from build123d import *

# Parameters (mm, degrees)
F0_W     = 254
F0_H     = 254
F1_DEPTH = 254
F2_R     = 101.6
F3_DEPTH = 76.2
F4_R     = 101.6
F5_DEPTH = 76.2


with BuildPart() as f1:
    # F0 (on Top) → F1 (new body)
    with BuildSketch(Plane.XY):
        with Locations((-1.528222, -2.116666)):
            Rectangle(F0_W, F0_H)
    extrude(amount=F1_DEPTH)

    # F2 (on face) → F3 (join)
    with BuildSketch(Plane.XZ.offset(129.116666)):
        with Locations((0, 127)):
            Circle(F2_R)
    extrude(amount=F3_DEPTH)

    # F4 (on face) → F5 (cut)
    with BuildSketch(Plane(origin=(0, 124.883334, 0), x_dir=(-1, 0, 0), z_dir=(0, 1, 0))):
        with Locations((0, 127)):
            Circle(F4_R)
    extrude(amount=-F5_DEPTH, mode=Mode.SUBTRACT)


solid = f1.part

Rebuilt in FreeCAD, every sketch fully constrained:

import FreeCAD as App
import Part
import Sketcher
from FreeCAD import Vector
Q = App.Units.Quantity


def add_polygon(sketch, points):
    """Adds a closed chain of lines whose ends are joined by coincident constraints."""
    first, n = sketch.GeometryCount, len(points)
    for a, b in zip(points, points[1:] + points[:1]):
        sketch.addGeometry(Part.LineSegment(App.Vector(*a, 0), App.Vector(*b, 0)), False)
    for i in range(n):
        sketch.addConstraint(Sketcher.Constraint("Coincident", first + i, 2, first + (i + 1) % n, 1))

doc = App.newDocument("Part")
params = doc.addObject("Spreadsheet::Sheet", "Params")
for row, (alias, value) in enumerate([
    ("sketch1_width", "10 in"),
    ("pad1_length", "10 in"),
    ("sketch2_diameter", "8 in"),
    ("pad2_length", "3 in"),
    ("sketch3_diameter", "8 in"),
    ("pocket1_length", "3 in"),
], start=1):
    params.set(f"A{row}", alias)
    params.set(f"B{row}", "=" + value)
    params.setAlias(f"B{row}", alias)

body = doc.addObject("PartDesign::Body", "Body")

# Sketch on XY plane
sketch1 = body.newObject("Sketcher::SketchObject", "Sketch")
sketch1.AttachmentSupport = (doc.getObject("XY_Plane"), [""])
sketch1.MapMode = "FlatFace"
add_polygon(sketch1, [(-128.528222, 124.883334), (-128.528222, -129.116666), (125.471778, -129.116666), (125.471778, 124.883334)])  # lines 0-3
sketch1.addConstraint(Sketcher.Constraint("Vertical", 0))
sketch1.addConstraint(Sketcher.Constraint("Horizontal", 1))
sketch1.addConstraint(Sketcher.Constraint("Vertical", 2))
sketch1.addConstraint(Sketcher.Constraint("Horizontal", 3))
sketch1.addConstraint(Sketcher.Constraint("Equal", 3, 0))
sketch1.addConstraint(Sketcher.Constraint("DistanceX", 1, 1, 1, 2, Q("10 in")))
sketch1.addConstraint(Sketcher.Constraint("DistanceX", 0, 2, -1, 1, 128.528222))
sketch1.addConstraint(Sketcher.Constraint("DistanceY", 0, 2, -1, 1, 129.116666))
sketch1.setExpression("Constraints[9]", "Params.sketch1_width")
pad1 = body.newObject("PartDesign::Pad", "Pad")
pad1.Profile = sketch1
pad1.setExpression("Length", "Params.pad1_length")

# Sketch on XZ plane
sketch2 = body.newObject("Sketcher::SketchObject", "Sketch001")
sketch2.AttachmentSupport = (doc.getObject("XZ_Plane"), [""])
sketch2.MapMode = "FlatFace"
sketch2.AttachmentOffset = App.Placement(Vector(0, 0, 129.116666), App.Rotation())
sketch2.addGeometry(Part.Circle(Vector(0, 127, 0), Vector(0, 0, 1), 101.6), False)
sketch2.addConstraint(Sketcher.Constraint("PointOnObject", 0, 3, -2))
sketch2.addConstraint(Sketcher.Constraint("Diameter", 0, Q("8 in")))
sketch2.addConstraint(Sketcher.Constraint("DistanceY", -1, 1, 0, 3, Q("5 in")))
sketch2.setExpression("Constraints[1]", "Params.sketch2_diameter")
pad2 = body.newObject("PartDesign::Pad", "Pad001")
pad2.Profile = sketch2
pad2.setExpression("Length", "Params.pad2_length")

# Sketch on XZ plane
sketch3 = body.newObject("Sketcher::SketchObject", "Sketch002")
sketch3.AttachmentSupport = (doc.getObject("XZ_Plane"), [""])
sketch3.MapMode = "FlatFace"
sketch3.AttachmentOffset = App.Placement(Vector(0, 0, -124.883334), App.Rotation())
sketch3.addGeometry(Part.Circle(Vector(0, 127, 0), Vector(0, 0, 1), 101.6), False)
sketch3.addConstraint(Sketcher.Constraint("PointOnObject", 0, 3, -2))
sketch3.addConstraint(Sketcher.Constraint("Diameter", 0, Q("8 in")))
sketch3.addConstraint(Sketcher.Constraint("DistanceY", -1, 1, 0, 3, Q("5 in")))
sketch3.setExpression("Constraints[1]", "Params.sketch3_diameter")
pocket1 = body.newObject("PartDesign::Pocket", "Pocket")
pocket1.Profile = sketch3
pocket1.setExpression("Length", "Params.pocket1_length")
pocket1.Reversed = True

doc.recompute()
